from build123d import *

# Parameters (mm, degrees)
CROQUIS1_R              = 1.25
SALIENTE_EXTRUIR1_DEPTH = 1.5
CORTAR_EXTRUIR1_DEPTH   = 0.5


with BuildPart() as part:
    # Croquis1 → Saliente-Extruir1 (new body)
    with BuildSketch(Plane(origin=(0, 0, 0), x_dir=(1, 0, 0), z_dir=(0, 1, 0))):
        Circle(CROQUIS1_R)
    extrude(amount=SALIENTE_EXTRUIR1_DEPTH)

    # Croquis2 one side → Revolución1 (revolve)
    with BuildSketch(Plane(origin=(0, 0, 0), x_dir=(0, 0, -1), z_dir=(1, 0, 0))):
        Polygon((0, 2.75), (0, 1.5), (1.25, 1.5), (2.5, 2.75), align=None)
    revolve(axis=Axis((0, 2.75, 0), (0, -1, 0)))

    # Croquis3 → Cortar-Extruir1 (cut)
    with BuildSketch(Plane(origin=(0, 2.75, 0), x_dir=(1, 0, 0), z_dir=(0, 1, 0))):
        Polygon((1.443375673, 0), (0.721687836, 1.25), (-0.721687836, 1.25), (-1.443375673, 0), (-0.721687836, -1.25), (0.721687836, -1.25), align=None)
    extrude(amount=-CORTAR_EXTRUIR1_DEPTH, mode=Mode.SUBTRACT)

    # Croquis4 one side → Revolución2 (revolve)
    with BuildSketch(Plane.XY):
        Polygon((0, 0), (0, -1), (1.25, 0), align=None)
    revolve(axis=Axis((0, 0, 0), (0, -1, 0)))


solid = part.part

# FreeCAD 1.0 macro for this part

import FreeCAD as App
import Part
import Sketcher

V = App.Vector
Q = App.Units.Quantity

doc = App.newDocument("Part")
params = doc.addObject("Spreadsheet::Sheet", "Params")
for row, (alias, value) in enumerate([
    ("sketch1_diameter", "2.5 mm"),
    ("pad1_length", "1.5 mm"),
    ("sketch2_height", "2.5 mm"),
    ("revolution_angle", "360 deg"),
    ("pocket1_length", "0.5 mm"),
    ("sketch4_height", "1 mm"),
    ("sketch4_width", "1.25 mm"),
    ("revolution2_angle", "360 deg"),
], start=1):
    params.set(f"A{row}", alias)
    params.set(f"B{row}", "=" + value)
    params.setAlias(f"B{row}", alias)

body = doc.addObject("PartDesign::Body", "Body")

# Sketch on XZ plane
sketch1 = doc.addObject("Sketcher::SketchObject", "Sketch")
body.addObject(sketch1)
sketch1.AttachmentSupport = (doc.XZ_Plane, [""])
sketch1.MapMode = "FlatFace"
sketch1.addGeometry(Part.Circle(V(0, 0, 0), V(0, 0, 1), 1.2), False)
sketch1.addConstraint([
    Sketcher.Constraint("Coincident", 0, 3, -1, 1),
    Sketcher.Constraint("Diameter", 0, 2.5),
])
sketch1.setExpression("Constraints[1]", "Params.sketch1_diameter")
pad1 = doc.addObject("PartDesign::Pad", "Pad")
body.addObject(pad1)
pad1.Profile = sketch1
pad1.setExpression("Length", "Params.pad1_length")
pad1.Reversed = True

# Sketch on YZ plane
sketch2 = doc.addObject("Sketcher::SketchObject", "Sketch001")
body.addObject(sketch2)
sketch2.AttachmentSupport = (doc.YZ_Plane, [""])
sketch2.MapMode = "FlatFace"
sketch2.addGeometry([
    Part.LineSegment(V(2.8, 0, 0), V(1.5, 0, 0)),
    Part.LineSegment(V(1.5, 0, 0), V(1.5, -1.2, 0)),
    Part.LineSegment(V(1.5, -1.2, 0), V(2.8, -2.5, 0)),
    Part.LineSegment(V(2.8, -2.5, 0), V(2.8, 0, 0)),
], False)
sketch2.addConstraint([
    Sketcher.Constraint("Coincident", 0, 2, 1, 1),
    Sketcher.Constraint("Coincident", 1, 2, 2, 1),
    Sketcher.Constraint("Coincident", 2, 2, 3, 1),
    Sketcher.Constraint("Coincident", 3, 2, 0, 1),
    Sketcher.Constraint("Horizontal", 0),
    Sketcher.Constraint("Vertical", 1),
    Sketcher.Constraint("Vertical", 3),
    Sketcher.Constraint("PointOnObject", 0, 2, -1),
    Sketcher.Constraint("Equal", 0, 1),
    Sketcher.Constraint("Angle", 2, Q("-45 deg")),
    Sketcher.Constraint("DistanceY", 3, 1, 3, 2, 2.5),
    Sketcher.Constraint("DistanceX", -1, 1, 0, 2, 1.5),
])
sketch2.setExpression("Constraints[10]", "Params.sketch2_height")
revolution = doc.addObject("PartDesign::Revolution", "Revolution")
body.addObject(revolution)
revolution.Profile = sketch2
revolution.ReferenceAxis = (sketch2, ["H_Axis"])
revolution.setExpression("Angle", "Params.revolution_angle")

# Sketch on XZ plane
sketch3 = doc.addObject("Sketcher::SketchObject", "Sketch002")
body.addObject(sketch3)
sketch3.AttachmentSupport = (doc.XZ_Plane, [""])
sketch3.MapMode = "FlatFace"
sketch3.AttachmentOffset = App.Placement(V(0, 0, -2.75), App.Rotation())
sketch3.addGeometry([
    Part.LineSegment(V(1.4, 0, 0), V(0.7, -1.2, 0)),  # 0
    Part.LineSegment(V(0.7, -1.2, 0), V(-0.7, -1.2, 0)),  # 1
    Part.LineSegment(V(-0.7, -1.2, 0), V(-1.4, 0, 0)),  # 2
    Part.LineSegment(V(-1.4, 0, 0), V(-0.7, 1.2, 0)),  # 3
    Part.LineSegment(V(-0.7, 1.2, 0), V(0.7, 1.2, 0)),  # 4
    Part.LineSegment(V(0.7, 1.2, 0), V(1.4, 0, 0)),  # 5
], False)
sketch3.addConstraint([
    Sketcher.Constraint("Coincident", 0, 2, 1, 1),
    Sketcher.Constraint("Coincident", 1, 2, 2, 1),
    Sketcher.Constraint("Coincident", 2, 2, 3, 1),
    Sketcher.Constraint("Coincident", 3, 2, 4, 1),
    Sketcher.Constraint("Coincident", 4, 2, 5, 1),
    Sketcher.Constraint("Coincident", 5, 2, 0, 1),
    Sketcher.Constraint("Horizontal", 1),
    Sketcher.Constraint("Horizontal", 4),
    Sketcher.Constraint("Symmetric", 0, 2, 3, 2, -1, 1),
    Sketcher.Constraint("Symmetric", 2, 2, 5, 2, -1, 1),
    Sketcher.Constraint("PointOnObject", 2, 2, -1),
    Sketcher.Constraint("Parallel", 2, 5),
    Sketcher.Constraint("Vertical", 1, 2, 3, 2),
    Sketcher.Constraint("Angle", 0, Q("-120 deg")),
    Sketcher.Constraint("DistanceY", 1, 2, 3, 2, 2.5),
    Sketcher.Constraint("DistanceX", 1, 2, 1, 1, 1.443376),
])
pocket1 = doc.addObject("PartDesign::Pocket", "Pocket")
body.addObject(pocket1)
pocket1.Profile = sketch3
pocket1.setExpression("Length", "Params.pocket1_length")
pocket1.Reversed = True

# Sketch on XY plane
sketch4 = doc.addObject("Sketcher::SketchObject", "Sketch003")
body.addObject(sketch4)
sketch4.AttachmentSupport = (doc.XY_Plane, [""])
sketch4.MapMode = "FlatFace"
sketch4.addGeometry([
    Part.LineSegment(V(0, 0, 0), V(0, -1, 0)),
    Part.LineSegment(V(0, -1, 0), V(1.2, 0, 0)),
    Part.LineSegment(V(1.2, 0, 0), V(0, 0, 0)),
], False)
sketch4.addConstraint([
    Sketcher.Constraint("Coincident", 0, 2, 1, 1),
    Sketcher.Constraint("Coincident", 1, 2, 2, 1),
    Sketcher.Constraint("Coincident", 2, 2, 0, 1),
    Sketcher.Constraint("Vertical", 0),
    Sketcher.Constraint("Horizontal", 2),
    Sketcher.Constraint("Coincident", 2, 2, -1, 1),
    Sketcher.Constraint("DistanceY", 0, 2, 0, 1, 1.0),
    Sketcher.Constraint("DistanceX", 2, 2, 2, 1, 1.25),
])
sketch4.setExpression("Constraints[6]", "Params.sketch4_height")
sketch4.setExpression("Constraints[7]", "Params.sketch4_width")
revolution2 = doc.addObject("PartDesign::Revolution", "Revolution001")
body.addObject(revolution2)
revolution2.Profile = sketch4
revolution2.ReferenceAxis = (sketch4, ["V_Axis"])
revolution2.setExpression("Angle", "Params.revolution2_angle")

doc.recompute()
